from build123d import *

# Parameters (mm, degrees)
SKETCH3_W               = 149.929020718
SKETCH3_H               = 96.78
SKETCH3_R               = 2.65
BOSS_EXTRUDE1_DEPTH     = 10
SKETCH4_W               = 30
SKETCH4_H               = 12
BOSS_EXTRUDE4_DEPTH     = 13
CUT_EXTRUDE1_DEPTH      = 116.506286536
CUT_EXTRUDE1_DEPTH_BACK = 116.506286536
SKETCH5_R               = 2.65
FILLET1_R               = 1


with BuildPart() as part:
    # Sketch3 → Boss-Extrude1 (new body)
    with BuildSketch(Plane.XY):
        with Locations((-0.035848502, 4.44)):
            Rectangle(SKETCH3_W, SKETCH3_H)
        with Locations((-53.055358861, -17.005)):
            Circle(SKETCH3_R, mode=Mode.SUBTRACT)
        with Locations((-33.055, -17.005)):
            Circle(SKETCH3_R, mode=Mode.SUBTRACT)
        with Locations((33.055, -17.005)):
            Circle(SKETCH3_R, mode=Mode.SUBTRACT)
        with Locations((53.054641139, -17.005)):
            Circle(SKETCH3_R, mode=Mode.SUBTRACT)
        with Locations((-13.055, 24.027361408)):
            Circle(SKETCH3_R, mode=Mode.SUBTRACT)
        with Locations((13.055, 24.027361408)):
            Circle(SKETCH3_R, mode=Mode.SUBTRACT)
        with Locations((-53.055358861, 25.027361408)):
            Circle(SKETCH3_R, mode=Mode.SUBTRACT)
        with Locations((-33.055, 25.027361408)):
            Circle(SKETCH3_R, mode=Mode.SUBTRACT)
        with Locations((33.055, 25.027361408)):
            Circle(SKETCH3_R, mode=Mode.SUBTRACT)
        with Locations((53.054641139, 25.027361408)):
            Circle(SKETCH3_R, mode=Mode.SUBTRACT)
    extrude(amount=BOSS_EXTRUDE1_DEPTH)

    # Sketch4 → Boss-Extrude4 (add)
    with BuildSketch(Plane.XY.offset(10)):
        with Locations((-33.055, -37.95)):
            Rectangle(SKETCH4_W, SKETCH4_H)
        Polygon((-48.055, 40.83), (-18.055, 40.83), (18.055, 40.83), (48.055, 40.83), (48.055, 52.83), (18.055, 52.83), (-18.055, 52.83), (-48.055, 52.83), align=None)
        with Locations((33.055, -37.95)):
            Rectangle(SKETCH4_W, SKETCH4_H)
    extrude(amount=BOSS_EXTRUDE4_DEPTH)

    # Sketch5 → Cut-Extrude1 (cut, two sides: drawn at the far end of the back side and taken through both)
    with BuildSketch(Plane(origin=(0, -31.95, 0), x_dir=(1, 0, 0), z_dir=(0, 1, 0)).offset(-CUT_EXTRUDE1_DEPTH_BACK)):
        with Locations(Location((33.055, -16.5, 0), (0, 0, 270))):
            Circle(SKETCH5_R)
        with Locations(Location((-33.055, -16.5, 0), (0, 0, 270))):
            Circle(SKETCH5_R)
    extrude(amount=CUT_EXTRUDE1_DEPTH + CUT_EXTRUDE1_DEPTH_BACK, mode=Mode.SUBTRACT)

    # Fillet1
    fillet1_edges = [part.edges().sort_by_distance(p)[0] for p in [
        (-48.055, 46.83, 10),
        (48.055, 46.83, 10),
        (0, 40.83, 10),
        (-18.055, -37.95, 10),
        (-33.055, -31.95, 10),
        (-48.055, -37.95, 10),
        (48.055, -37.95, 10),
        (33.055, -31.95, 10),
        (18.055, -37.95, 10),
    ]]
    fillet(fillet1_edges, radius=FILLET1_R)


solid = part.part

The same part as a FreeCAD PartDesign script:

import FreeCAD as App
import Part
import Sketcher

V = App.Vector
Q = App.Units.Quantity


def edges_at(feature, points):
    """Names of the edges that pass closest to the given points."""
    edges = feature.Shape.Edges
    near = lambda p: min(range(len(edges)), key=lambda i: edges[i].distToShape(Part.Vertex(*p))[0])
    return sorted({f"Edge{near(p) + 1}" for p in points})

doc = App.newDocument("Part")
body = doc.addObject("PartDesign::Body", "Body")

sketch1 = body.newObject("Sketcher::SketchObject", "Sketch")
sketch1.AttachmentSupport = (doc.getObject("XY_Plane"), [""])
sketch1.MapMode = "FlatFace"
sketch1.addGeometry(Part.LineSegment(V(-75, 52.8, 0), V(-75, -44, 0)), False)
sketch1.addGeometry(Part.LineSegment(V(-75, -44, 0), V(74.9, -44, 0)), False)
sketch1.addGeometry(Part.LineSegment(V(74.9, -44, 0), V(74.9, 52.8, 0)), False)
sketch1.addGeometry(Part.LineSegment(V(74.9, 52.8, 0), V(-75, 52.8, 0)), False)
sketch1.addGeometry(Part.Circle(V(-53.1, -17, 0), V(0, 0, 1), 2.6), False)
sketch1.addGeometry(Part.Circle(V(-33.1, -17, 0), V(0, 0, 1), 2.6), False)
sketch1.addGeometry(Part.Circle(V(33.1, -17, 0), V(0, 0, 1), 2.6), False)
sketch1.addGeometry(Part.Circle(V(53.1, -17, 0), V(0, 0, 1), 2.6), False)
sketch1.addGeometry(Part.Circle(V(-53.1, 25, 0), V(0, 0, 1), 2.6), False)
sketch1.addGeometry(Part.Circle(V(-33.1, 25, 0), V(0, 0, 1), 2.6), False)
sketch1.addGeometry(Part.Circle(V(-13.1, 24, 0), V(0, 0, 1), 2.6), False)
sketch1.addGeometry(Part.Circle(V(13.1, 24, 0), V(0, 0, 1), 2.6), False)
sketch1.addGeometry(Part.Circle(V(33.1, 25, 0), V(0, 0, 1), 2.6), False)
sketch1.addGeometry(Part.Circle(V(53.1, 25, 0), V(0, 0, 1), 2.6), False)
sketch1.addConstraint(Sketcher.Constraint("Coincident", 0, 2, 1, 1))
sketch1.addConstraint(Sketcher.Constraint("Coincident", 1, 2, 2, 1))
sketch1.addConstraint(Sketcher.Constraint("Coincident", 2, 2, 3, 1))
sketch1.addConstraint(Sketcher.Constraint("Coincident", 3, 2, 0, 1))
sketch1.addConstraint(Sketcher.Constraint("Vertical", 0))
sketch1.addConstraint(Sketcher.Constraint("Horizontal", 1))
sketch1.addConstraint(Sketcher.Constraint("Vertical", 2))
sketch1.addConstraint(Sketcher.Constraint("Horizontal", 3))
sketch1.addConstraint(Sketcher.Constraint("Equal", 4, 5))
sketch1.addConstraint(Sketcher.Constraint("Equal", 5, 6))
sketch1.addConstraint(Sketcher.Constraint("Equal", 6, 7))
sketch1.addConstraint(Sketcher.Constraint("Equal", 7, 8))
sketch1.addConstraint(Sketcher.Constraint("Equal", 8, 9))
sketch1.addConstraint(Sketcher.Constraint("Equal", 9, 10))
sketch1.addConstraint(Sketcher.Constraint("Equal", 10, 11))
sketch1.addConstraint(Sketcher.Constraint("Equal", 11, 12))
sketch1.addConstraint(Sketcher.Constraint("Equal", 12, 13))
sketch1.addConstraint(Sketcher.Constraint("Symmetric", 5, 3, 6, 3, -2))
sketch1.addConstraint(Sketcher.Constraint("Symmetric", 10, 3, 11, 3, -2))
sketch1.addConstraint(Sketcher.Constraint("Symmetric", 9, 3, 12, 3, -2))
sketch1.addConstraint(Sketcher.Constraint("Horizontal", 4, 3, 5, 3))
sketch1.addConstraint(Sketcher.Constraint("Horizontal", 6, 3, 7, 3))
sketch1.addConstraint(Sketcher.Constraint("Horizontal", 8, 3, 9, 3))
sketch1.addConstraint(Sketcher.Constraint("Horizontal", 12, 3, 13, 3))
sketch1.addConstraint(Sketcher.Constraint("Vertical", 4, 3, 8, 3))
sketch1.addConstraint(Sketcher.Constraint("Vertical", 5, 3, 9, 3))
sketch1.addConstraint(Sketcher.Constraint("Vertical", 7, 3, 13, 3))
sketch1.addConstraint(Sketcher.Constraint("Diameter", 4, Q("5.3 mm")))
sketch1.addConstraint(Sketcher.Constraint("DistanceX", 9, 3, 10, 3, Q("20 mm")))
sketch1.addConstraint(Sketcher.Constraint("DistanceY", 10, 3, 9, 3, Q("1 mm")))
sketch1.addConstraint(Sketcher.Constraint("DistanceY", 0, 2, 0, 1, Q("96.78 mm")))
sketch1.addConstraint(Sketcher.Constraint("DistanceY", 0, 2, -1, 1, Q("43.95 mm")))
sketch1.addConstraint(Sketcher.Constraint("DistanceX", 5, 3, 6, 3, Q("66.11 mm")))
sketch1.addConstraint(Sketcher.Constraint("DistanceX", 4, 3, 7, 3, Q("106.11 mm")))
sketch1.addConstraint(Sketcher.Constraint("DistanceY", 4, 3, -1, 1, Q("17.005 mm")))
sketch1.addConstraint(Sketcher.Constraint("DistanceX", 0, 2, 4, 3, Q("21.945 mm")))
sketch1.addConstraint(Sketcher.Constraint("DistanceX", 1, 1, 1, 2, Q("149.929021 mm")))
sketch1.addConstraint(Sketcher.Constraint("DistanceX", 4, 3, -1, 1, Q("53.055359 mm")))
sketch1.addConstraint(Sketcher.Constraint("DistanceY", -1, 1, 8, 3, Q("25.027361 mm")))
pad1 = body.newObject("PartDesign::Pad", "Pad")
pad1.Profile = sketch1
pad1.Length = 10

sketch2 = body.newObject("Sketcher::SketchObject", "Sketch001")
sketch2.AttachmentSupport = (doc.getObject("XY_Plane"), [""])
sketch2.MapMode = "FlatFace"
sketch2.AttachmentOffset = App.Placement(V(0, 0, 10), App.Rotation())
sketch2.addGeometry(Part.LineSegment(V(-48, -32, 0), V(-48, -44, 0)), False)
sketch2.addGeometry(Part.LineSegment(V(-48, -44, 0), V(-18, -44, 0)), False)
sketch2.addGeometry(Part.LineSegment(V(-18, -44, 0), V(-18, -32, 0)), False)
sketch2.addGeometry(Part.LineSegment(V(-18, -32, 0), V(-48, -32, 0)), False)
sketch2.addGeometry(Part.LineSegment(V(-48, 41, 0), V(48, 41, 0)), False)
sketch2.addGeometry(Part.LineSegment(V(48, 41, 0), V(48, 53, 0)), False)
sketch2.addGeometry(Part.LineSegment(V(48, 53, 0), V(-48, 53, 0)), False)
sketch2.addGeometry(Part.LineSegment(V(-48, 53, 0), V(-48, 41, 0)), False)
sketch2.addGeometry(Part.LineSegment(V(18, -32, 0), V(18, -44, 0)), False)
sketch2.addGeometry(Part.LineSegment(V(18, -44, 0), V(48, -44, 0)), False)
sketch2.addGeometry(Part.LineSegment(V(48, -44, 0), V(48, -32, 0)), False)
sketch2.addGeometry(Part.LineSegment(V(48, -32, 0), V(18, -32, 0)), False)
sketch2.addConstraint(Sketcher.Constraint("Coincident", 0, 2, 1, 1))
sketch2.addConstraint(Sketcher.Constraint("Coincident", 1, 2, 2, 1))
sketch2.addConstraint(Sketcher.Constraint("Coincident", 2, 2, 3, 1))
sketch2.addConstraint(Sketcher.Constraint("Coincident", 3, 2, 0, 1))
sketch2.addConstraint(Sketcher.Constraint("Coincident", 4, 2, 5, 1))
sketch2.addConstraint(Sketcher.Constraint("Coincident", 5, 2, 6, 1))
sketch2.addConstraint(Sketcher.Constraint("Coincident", 6, 2, 7, 1))
sketch2.addConstraint(Sketcher.Constraint("Coincident", 7, 2, 4, 1))
sketch2.addConstraint(Sketcher.Constraint("Coincident", 8, 2, 9, 1))
sketch2.addConstraint(Sketcher.Constraint("Coincident", 9, 2, 10, 1))
sketch2.addConstraint(Sketcher.Constraint("Coincident", 10, 2, 11, 1))
sketch2.addConstraint(Sketcher.Constraint("Coincident", 11, 2, 8, 1))
sketch2.addConstraint(Sketcher.Constraint("Vertical", 0))
sketch2.addConstraint(Sketcher.Constraint("Horizontal", 1))
sketch2.addConstraint(Sketcher.Constraint("Vertical", 2))
sketch2.addConstraint(Sketcher.Constraint("Horizontal", 3))
sketch2.addConstraint(Sketcher.Constraint("Horizontal", 4))
sketch2.addConstraint(Sketcher.Constraint("Vertical", 5))
sketch2.addConstraint(Sketcher.Constraint("Horizontal", 6))
sketch2.addConstraint(Sketcher.Constraint("Vertical", 7))
sketch2.addConstraint(Sketcher.Constraint("Vertical", 8))
sketch2.addConstraint(Sketcher.Constraint("Horizontal", 9))
sketch2.addConstraint(Sketcher.Constraint("Vertical", 10))
sketch2.addConstraint(Sketcher.Constraint("Horizontal", 11))
sketch2.addConstraint(Sketcher.Constraint("Symmetric", 1, 2, 8, 2, -2))
sketch2.addConstraint(Sketcher.Constraint("Symmetric", 3, 2, 10, 2, -2))
sketch2.addConstraint(Sketcher.Constraint("Vertical", 3, 2, 6, 2))
sketch2.addConstraint(Sketcher.Constraint("Vertical", 5, 2, 9, 2))
sketch2.addConstraint(Sketcher.Constraint("Equal", 2, 5))
sketch2.addConstraint(Sketcher.Constraint("DistanceX", 1, 1, 1, 2, Q("30 mm")))
sketch2.addConstraint(Sketcher.Constraint("DistanceY", 0, 2, 0, 1, Q("12 mm")))
sketch2.addConstraint(Sketcher.Constraint("DistanceX", 4, 1, 4, 2, Q("96.11 mm")))
sketch2.addConstraint(Sketcher.Constraint("DistanceY", 0, 2, -1, 1, Q("43.95 mm")))
sketch2.addConstraint(Sketcher.Constraint("DistanceY", -1, 1, 4, 2, Q("40.83 mm")))
pad2 = body.newObject("PartDesign::Pad", "Pad001")
pad2.Profile = sketch2
pad2.Length = 13

sketch3 = body.newObject("Sketcher::SketchObject", "Sketch002")
sketch3.AttachmentSupport = (doc.getObject("XZ_Plane"), [""])
sketch3.MapMode = "FlatFace"
sketch3.AttachmentOffset = App.Placement(V(0, 0, 31.95), App.Rotation())
sketch3.addGeometry(Part.Circle(V(33.1, 16.5, 0), V(0, 0, 1), 2.6), False)
sketch3.addGeometry(Part.Circle(V(-33.1, 16.5, 0), V(0, 0, 1), 2.6), False)
sketch3.addConstraint(Sketcher.Constraint("Equal", 0, 1))
sketch3.addConstraint(Sketcher.Constraint("Symmetric", 0, 3, 1, 3, -2))
sketch3.addConstraint(Sketcher.Constraint("Diameter", 0, Q("5.3 mm")))
sketch3.addConstraint(Sketcher.Constraint("DistanceY", -1, 1, 0, 3, Q("16.5 mm")))
sketch3.addConstraint(Sketcher.Constraint("DistanceX", 1, 3, 0, 3, Q("66.11 mm")))
pocket1 = body.newObject("PartDesign::Pocket", "Pocket")
pocket1.Profile = sketch3
pocket1.Type = "ThroughAll"
pocket1.Midplane = True
doc.recompute()

fillet = body.newObject("PartDesign::Fillet", "Fillet")
fillet.Base = (pocket1, edges_at(pocket1, [
    (-48.055, 46.83, 10),
    (48.055, 46.83, 10),
    (0, 40.83, 10),
    (-18.055, -37.95, 10),
    (-33.055, -31.95, 10),
    (-48.055, -37.95, 10),
    (48.055, -37.95, 10),
    (33.055, -31.95, 10),
    (18.055, -37.95, 10),
]))
fillet.Radius = 1

doc.recompute()
